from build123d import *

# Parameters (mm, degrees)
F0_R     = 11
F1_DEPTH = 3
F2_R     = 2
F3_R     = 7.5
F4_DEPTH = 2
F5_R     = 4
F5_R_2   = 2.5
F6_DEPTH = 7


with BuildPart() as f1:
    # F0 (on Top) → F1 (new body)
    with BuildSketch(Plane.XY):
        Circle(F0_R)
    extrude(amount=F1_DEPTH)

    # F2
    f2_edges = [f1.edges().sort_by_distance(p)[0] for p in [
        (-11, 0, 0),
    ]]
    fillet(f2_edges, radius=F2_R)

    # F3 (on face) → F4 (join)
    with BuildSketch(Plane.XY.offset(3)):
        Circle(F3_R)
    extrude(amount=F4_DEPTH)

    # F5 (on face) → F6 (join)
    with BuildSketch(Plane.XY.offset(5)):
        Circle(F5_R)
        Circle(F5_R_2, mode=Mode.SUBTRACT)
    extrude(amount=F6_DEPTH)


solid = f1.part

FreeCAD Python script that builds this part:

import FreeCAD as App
import Part
import Sketcher

V = App.Vector
Q = App.Units.Quantity


def edges_at(feature, points):
    """Names of the edges that pass closest to the given points."""
    edges = feature.Shape.Edges
    near = lambda p: min(range(len(edges)), key=lambda i: edges[i].distToShape(Part.Vertex(*p))[0])
    return sorted({f"Edge{near(p) + 1}" for p in points})

doc = App.newDocument("Part")
body = doc.addObject("PartDesign::Body", "Body")

sketch1 = doc.addObject("Sketcher::SketchObject", "Sketch")
body.addObject(sketch1)
sketch1.AttachmentSupport = (doc.XY_Plane, [""])
sketch1.MapMode = "FlatFace"
sketch1.addGeometry(Part.Circle(V(0, 0, 0), V(0, 0, 1), 11), False)
sketch1.addConstraint(Sketcher.Constraint("Coincident", 0, 3, -1, 1))
sketch1.addConstraint(Sketcher.Constraint("Diameter", 0, Q("22 mm")))
pad1 = doc.addObject("PartDesign::Pad", "Pad")
body.addObject(pad1)
pad1.Profile = sketch1
pad1.Length = 3
doc.recompute()

fillet = doc.addObject("PartDesign::Fillet", "Fillet")
body.addObject(fillet)
fillet.Base = (pad1, edges_at(pad1, [(-11, 0, 0)]))
fillet.Radius = 2

sketch2 = doc.addObject("Sketcher::SketchObject", "Sketch001")
body.addObject(sketch2)
sketch2.AttachmentSupport = (doc.XY_Plane, [""])
sketch2.MapMode = "FlatFace"
sketch2.AttachmentOffset = App.Placement(V(0, 0, 3), App.Rotation())
sketch2.addGeometry(Part.Circle(V(0, 0, 0), V(0, 0, 1), 7.5), False)
sketch2.addConstraint(Sketcher.Constraint("Coincident", 0, 3, -1, 1))
sketch2.addConstraint(Sketcher.Constraint("Diameter", 0, Q("15 mm")))
pad2 = doc.addObject("PartDesign::Pad", "Pad001")
body.addObject(pad2)
pad2.Profile = sketch2
pad2.Length = 2

sketch3 = doc.addObject("Sketcher::SketchObject", "Sketch002")
body.addObject(sketch3)
sketch3.AttachmentSupport = (doc.XY_Plane, [""])
sketch3.MapMode = "FlatFace"
sketch3.AttachmentOffset = App.Placement(V(0, 0, 5), App.Rotation())
sketch3.addGeometry(Part.Circle(V(0, 0, 0), V(0, 0, 1), 4), False)
sketch3.addGeometry(Part.Circle(V(0, 0, 0), V(0, 0, 1), 2.5), False)
sketch3.addConstraint(Sketcher.Constraint("Coincident", 0, 3, -1, 1))
sketch3.addConstraint(Sketcher.Constraint("Coincident", 1, 3, -1, 1))
sketch3.addConstraint(Sketcher.Constraint("Diameter", 0, Q("8 mm")))
sketch3.addConstraint(Sketcher.Constraint("Diameter", 1, Q("5 mm")))
pad3 = doc.addObject("PartDesign::Pad", "Pad002")
body.addObject(pad3)
pad3.Profile = sketch3
pad3.Length = 7

doc.recompute()
